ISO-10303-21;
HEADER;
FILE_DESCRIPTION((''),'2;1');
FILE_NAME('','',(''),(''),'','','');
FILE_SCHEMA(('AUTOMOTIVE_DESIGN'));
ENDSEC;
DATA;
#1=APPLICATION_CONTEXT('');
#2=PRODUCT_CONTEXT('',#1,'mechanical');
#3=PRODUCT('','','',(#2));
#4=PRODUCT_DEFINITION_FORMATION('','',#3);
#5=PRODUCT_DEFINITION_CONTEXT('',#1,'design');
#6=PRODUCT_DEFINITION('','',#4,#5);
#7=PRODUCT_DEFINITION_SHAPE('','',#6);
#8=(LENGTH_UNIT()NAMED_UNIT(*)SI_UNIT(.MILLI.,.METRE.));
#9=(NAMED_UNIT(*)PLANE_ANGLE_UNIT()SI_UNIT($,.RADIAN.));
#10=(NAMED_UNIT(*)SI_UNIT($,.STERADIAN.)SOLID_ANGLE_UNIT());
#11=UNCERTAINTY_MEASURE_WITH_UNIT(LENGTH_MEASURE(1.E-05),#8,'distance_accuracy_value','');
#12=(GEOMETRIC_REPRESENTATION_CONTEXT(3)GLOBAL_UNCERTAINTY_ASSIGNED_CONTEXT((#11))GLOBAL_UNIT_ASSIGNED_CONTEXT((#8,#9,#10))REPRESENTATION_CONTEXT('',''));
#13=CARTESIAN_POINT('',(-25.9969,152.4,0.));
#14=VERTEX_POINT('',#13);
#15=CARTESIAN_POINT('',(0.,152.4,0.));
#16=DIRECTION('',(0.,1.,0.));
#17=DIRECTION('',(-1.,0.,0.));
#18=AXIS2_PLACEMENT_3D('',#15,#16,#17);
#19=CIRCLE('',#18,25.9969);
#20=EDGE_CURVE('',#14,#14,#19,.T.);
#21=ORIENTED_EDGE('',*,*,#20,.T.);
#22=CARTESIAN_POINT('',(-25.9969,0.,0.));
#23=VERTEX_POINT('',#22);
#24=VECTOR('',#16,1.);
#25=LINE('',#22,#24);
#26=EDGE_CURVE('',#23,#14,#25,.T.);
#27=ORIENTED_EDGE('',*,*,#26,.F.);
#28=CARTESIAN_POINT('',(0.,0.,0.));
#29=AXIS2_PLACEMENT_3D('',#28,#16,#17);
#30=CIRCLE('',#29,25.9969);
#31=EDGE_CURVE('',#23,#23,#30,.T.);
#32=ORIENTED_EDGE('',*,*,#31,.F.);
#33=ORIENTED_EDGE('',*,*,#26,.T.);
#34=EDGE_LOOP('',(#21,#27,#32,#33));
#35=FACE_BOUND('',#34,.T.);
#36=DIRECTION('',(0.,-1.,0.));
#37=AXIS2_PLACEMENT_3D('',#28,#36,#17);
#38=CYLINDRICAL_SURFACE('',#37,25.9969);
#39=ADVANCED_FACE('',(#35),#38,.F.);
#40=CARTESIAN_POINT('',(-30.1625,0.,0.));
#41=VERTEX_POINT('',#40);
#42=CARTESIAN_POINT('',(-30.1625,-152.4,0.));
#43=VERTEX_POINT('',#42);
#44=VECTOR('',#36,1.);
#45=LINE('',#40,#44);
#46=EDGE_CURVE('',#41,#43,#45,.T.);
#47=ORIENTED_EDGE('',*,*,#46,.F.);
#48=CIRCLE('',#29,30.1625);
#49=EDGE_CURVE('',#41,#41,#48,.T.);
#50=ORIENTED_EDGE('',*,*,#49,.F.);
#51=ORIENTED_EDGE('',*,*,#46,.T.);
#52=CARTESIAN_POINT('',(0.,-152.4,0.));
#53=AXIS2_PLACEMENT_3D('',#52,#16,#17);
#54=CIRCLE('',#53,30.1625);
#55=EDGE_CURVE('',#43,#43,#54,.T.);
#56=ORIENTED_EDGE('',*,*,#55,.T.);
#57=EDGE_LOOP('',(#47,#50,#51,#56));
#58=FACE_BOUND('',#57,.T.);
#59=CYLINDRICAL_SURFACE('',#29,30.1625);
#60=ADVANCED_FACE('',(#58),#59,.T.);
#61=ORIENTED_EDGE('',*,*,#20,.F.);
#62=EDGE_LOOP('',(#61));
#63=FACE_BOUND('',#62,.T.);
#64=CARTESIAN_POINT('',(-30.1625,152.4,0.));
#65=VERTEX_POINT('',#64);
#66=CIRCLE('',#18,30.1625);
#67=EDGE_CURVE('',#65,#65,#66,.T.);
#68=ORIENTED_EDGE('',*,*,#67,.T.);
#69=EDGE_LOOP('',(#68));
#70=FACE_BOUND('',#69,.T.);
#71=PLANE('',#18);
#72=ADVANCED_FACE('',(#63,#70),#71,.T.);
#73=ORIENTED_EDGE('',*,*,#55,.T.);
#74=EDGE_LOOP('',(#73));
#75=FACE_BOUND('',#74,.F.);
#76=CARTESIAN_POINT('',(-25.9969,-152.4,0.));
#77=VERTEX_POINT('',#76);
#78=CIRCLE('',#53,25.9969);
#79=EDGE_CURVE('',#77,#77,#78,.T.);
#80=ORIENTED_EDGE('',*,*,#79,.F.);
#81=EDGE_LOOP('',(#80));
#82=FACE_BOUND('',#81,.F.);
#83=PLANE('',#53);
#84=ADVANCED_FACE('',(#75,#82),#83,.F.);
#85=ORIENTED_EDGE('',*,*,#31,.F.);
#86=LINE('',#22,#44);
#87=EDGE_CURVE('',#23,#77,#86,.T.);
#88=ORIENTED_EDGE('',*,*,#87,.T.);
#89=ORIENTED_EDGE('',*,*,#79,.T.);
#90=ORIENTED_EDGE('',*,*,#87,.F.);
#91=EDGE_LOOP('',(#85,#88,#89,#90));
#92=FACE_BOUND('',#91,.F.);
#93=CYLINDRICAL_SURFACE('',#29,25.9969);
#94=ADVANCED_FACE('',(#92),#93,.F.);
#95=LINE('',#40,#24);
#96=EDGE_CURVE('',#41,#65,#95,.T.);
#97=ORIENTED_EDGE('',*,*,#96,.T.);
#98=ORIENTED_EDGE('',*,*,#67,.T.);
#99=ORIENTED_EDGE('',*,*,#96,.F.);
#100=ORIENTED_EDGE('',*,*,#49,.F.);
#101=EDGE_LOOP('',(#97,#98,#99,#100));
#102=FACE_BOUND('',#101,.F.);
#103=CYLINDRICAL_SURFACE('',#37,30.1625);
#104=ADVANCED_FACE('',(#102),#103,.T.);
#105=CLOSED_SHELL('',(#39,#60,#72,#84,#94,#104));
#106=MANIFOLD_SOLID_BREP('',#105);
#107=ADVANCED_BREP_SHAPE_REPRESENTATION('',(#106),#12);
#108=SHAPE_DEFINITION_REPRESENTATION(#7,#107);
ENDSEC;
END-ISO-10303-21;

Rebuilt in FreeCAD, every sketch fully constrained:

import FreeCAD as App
import Part
import Sketcher
Q = App.Units.Quantity

doc = App.newDocument("Part")
body = doc.addObject("PartDesign::Body", "Body")

# Sketch on XZ plane
sketch1 = body.newObject("Sketcher::SketchObject", "Sketch")
sketch1.AttachmentSupport = (doc.getObject("XZ_Plane"), [""])
sketch1.MapMode = "FlatFace"
sketch1.addGeometry(Part.Circle(App.Vector(0, 0, 0), App.Vector(0, 0, 1), 30.1625), False)
sketch1.addGeometry(Part.Circle(App.Vector(0, 0, 0), App.Vector(0, 0, 1), 25.9969), False)
sketch1.addConstraint(Sketcher.Constraint("Coincident", 0, 3, -1, 1))
sketch1.addConstraint(Sketcher.Constraint("Coincident", 1, 3, -1, 1))
sketch1.addConstraint(Sketcher.Constraint("Diameter", 0, Q("2.375 in")))
sketch1.addConstraint(Sketcher.Constraint("Diameter", 1, Q("2.047 in")))
pad1 = body.newObject("PartDesign::Pad", "Pad")
pad1.Profile = sketch1
pad1.Length = Q("12 in")
pad1.Midplane = True

doc.recompute()
